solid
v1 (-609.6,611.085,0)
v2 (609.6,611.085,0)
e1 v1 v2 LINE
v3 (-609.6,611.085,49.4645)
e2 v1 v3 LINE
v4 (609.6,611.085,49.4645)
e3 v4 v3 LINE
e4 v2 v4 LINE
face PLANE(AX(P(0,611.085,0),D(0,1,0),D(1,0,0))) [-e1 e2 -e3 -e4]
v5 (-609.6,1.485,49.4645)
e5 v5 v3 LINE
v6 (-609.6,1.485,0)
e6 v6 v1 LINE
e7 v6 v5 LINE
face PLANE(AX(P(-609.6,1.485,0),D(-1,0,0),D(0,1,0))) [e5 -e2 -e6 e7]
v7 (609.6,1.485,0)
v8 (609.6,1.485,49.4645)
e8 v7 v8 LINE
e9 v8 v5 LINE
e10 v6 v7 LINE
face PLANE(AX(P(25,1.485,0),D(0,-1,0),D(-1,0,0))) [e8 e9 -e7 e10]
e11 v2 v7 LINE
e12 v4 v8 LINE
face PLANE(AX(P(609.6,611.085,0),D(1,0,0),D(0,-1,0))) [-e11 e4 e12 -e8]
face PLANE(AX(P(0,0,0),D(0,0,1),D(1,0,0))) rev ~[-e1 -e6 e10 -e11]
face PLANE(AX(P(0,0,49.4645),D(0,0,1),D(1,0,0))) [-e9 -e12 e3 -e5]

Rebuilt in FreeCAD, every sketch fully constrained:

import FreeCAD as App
import Part
import Sketcher
Q = App.Units.Quantity


def add_polygon(sketch, points):
    """Adds a closed chain of lines whose ends are joined by coincident constraints."""
    first, n = sketch.GeometryCount, len(points)
    for a, b in zip(points, points[1:] + points[:1]):
        sketch.addGeometry(Part.LineSegment(App.Vector(*a, 0), App.Vector(*b, 0)), False)
    for i in range(n):
        sketch.addConstraint(Sketcher.Constraint("Coincident", first + i, 2, first + (i + 1) % n, 1))

doc = App.newDocument("Part")
body = doc.addObject("PartDesign::Body", "Body")

sketch1 = doc.addObject("Sketcher::SketchObject", "Sketch")
body.addObject(sketch1)
sketch1.AttachmentSupport = (doc.XY_Plane, [""])
sketch1.MapMode = "FlatFace"
add_polygon(sketch1, [(610, 1), (610, 611), (-610, 611), (-610, 1)])
sketch1.addConstraint([
    Sketcher.Constraint("Vertical", 0),
    Sketcher.Constraint("Horizontal", 1),
    Sketcher.Constraint("Vertical", 2),
    Sketcher.Constraint("Horizontal", 3),
    Sketcher.Constraint("DistanceY", 0, 1, 0, 2, Q("24 in")),
    Sketcher.Constraint("DistanceX", -1, 1, 0, 2, Q("24 in")),
    Sketcher.Constraint("DistanceX", 1, 2, -1, 1, Q("24 in")),
    Sketcher.Constraint("DistanceY", -1, 1, 0, 2, 611.085),
])
pad1 = doc.addObject("PartDesign::Pad", "Pad")
body.addObject(pad1)
pad1.Profile = sketch1
pad1.Length = 49.4645

doc.recompute()
